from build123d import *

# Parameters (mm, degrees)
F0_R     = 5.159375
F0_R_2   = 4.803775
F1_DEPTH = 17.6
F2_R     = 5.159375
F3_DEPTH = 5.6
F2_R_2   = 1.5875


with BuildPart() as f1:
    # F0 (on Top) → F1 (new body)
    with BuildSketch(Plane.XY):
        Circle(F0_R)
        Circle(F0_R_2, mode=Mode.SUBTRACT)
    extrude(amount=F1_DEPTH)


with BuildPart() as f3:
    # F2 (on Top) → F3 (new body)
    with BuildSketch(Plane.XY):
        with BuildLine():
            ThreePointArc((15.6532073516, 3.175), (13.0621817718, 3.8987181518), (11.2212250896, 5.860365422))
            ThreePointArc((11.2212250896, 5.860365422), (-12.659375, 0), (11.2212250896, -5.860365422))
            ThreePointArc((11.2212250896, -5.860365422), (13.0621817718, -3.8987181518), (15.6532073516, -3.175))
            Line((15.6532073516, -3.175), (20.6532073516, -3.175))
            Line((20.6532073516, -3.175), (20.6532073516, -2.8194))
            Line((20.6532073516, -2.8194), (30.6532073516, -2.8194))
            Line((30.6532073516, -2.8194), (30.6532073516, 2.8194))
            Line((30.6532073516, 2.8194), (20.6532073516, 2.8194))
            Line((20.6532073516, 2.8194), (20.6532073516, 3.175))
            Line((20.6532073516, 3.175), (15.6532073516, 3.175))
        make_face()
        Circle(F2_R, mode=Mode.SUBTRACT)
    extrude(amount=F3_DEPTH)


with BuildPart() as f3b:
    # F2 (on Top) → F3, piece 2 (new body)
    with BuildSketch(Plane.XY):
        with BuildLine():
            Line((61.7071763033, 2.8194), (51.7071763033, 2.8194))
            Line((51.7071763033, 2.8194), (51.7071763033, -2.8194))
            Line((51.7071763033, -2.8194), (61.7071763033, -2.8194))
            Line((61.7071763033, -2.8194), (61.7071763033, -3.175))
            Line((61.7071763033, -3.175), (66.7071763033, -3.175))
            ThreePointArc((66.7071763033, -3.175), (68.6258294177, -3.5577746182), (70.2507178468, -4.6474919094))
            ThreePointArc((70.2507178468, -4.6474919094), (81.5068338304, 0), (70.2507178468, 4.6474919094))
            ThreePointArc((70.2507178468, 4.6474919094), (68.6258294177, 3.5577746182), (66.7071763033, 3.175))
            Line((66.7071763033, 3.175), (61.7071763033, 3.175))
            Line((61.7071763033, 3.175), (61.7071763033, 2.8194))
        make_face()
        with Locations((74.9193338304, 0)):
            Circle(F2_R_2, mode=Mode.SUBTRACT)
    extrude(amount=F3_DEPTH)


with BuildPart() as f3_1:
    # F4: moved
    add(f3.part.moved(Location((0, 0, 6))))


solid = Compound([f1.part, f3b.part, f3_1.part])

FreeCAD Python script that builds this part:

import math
import FreeCAD as App
import Part
import Sketcher

V = App.Vector
Q = App.Units.Quantity

doc = App.newDocument("Part")
body = doc.addObject("PartDesign::Body", "Body")

# Sketch on XY plane
sketch1 = doc.addObject("Sketcher::SketchObject", "Sketch")
body.addObject(sketch1)
sketch1.AttachmentSupport = (doc.XY_Plane, [""])
sketch1.MapMode = "FlatFace"
sketch1.addGeometry([
    Part.Circle(V(0, 0, 0), V(0, 0, 1), 5.2),
    Part.Circle(V(0, 0, 0), V(0, 0, 1), 4.8),
], False)
sketch1.addConstraint([
    Sketcher.Constraint("Coincident", 0, 3, -1, 1),
    Sketcher.Constraint("Coincident", 1, 3, -1, 1),
    Sketcher.Constraint("Diameter", 0, Q("10.31875 mm")),
    Sketcher.Constraint("Diameter", 1, Q("9.60755 mm")),
])
pad1 = doc.addObject("PartDesign::Pad", "Pad")
body.addObject(pad1)
pad1.Profile = sketch1
pad1.Length = 17.6
body2 = doc.addObject("PartDesign::Body", "Body001")

# Sketch on XY plane
sketch2 = doc.addObject("Sketcher::SketchObject", "Sketch001")
body2.addObject(sketch2)
sketch2.AttachmentSupport = (doc.getObject("XY_Plane001"), [""])
sketch2.MapMode = "FlatFace"
sketch2.addGeometry([
    Part.ArcOfCircle(Part.Circle(V(15.65, 8.18, 0), V(0, 0, 1), 5), math.radians(-152), math.radians(-90)),  # 0
    Part.ArcOfCircle(Part.Circle(V(0, 0, 0), V(0, 0, 1), 12.66), math.radians(28), math.radians(332)),  # 1
    Part.ArcOfCircle(Part.Circle(V(15.65, -8.18, 0), V(0, 0, 1), 5), math.radians(90), math.radians(152)),  # 2
    Part.LineSegment(V(15.65, -3.17, 0), V(20.65, -3.17, 0)),  # 3
    Part.LineSegment(V(20.65, -3.17, 0), V(20.65, -2.82, 0)),  # 4
    Part.LineSegment(V(20.65, -2.82, 0), V(30.65, -2.82, 0)),  # 5
    Part.LineSegment(V(30.65, -2.82, 0), V(30.65, 2.82, 0)),  # 6
    Part.LineSegment(V(30.65, 2.82, 0), V(20.65, 2.82, 0)),  # 7
    Part.LineSegment(V(20.65, 2.82, 0), V(20.65, 3.17, 0)),  # 8
    Part.LineSegment(V(20.65, 3.17, 0), V(15.65, 3.17, 0)),  # 9
    Part.Circle(V(0, 0, 0), V(0, 0, 1), 5.16),  # 10
], False)
sketch2.addConstraint([
    Sketcher.Constraint("Tangent", 0, 1, 1, 1),
    Sketcher.Constraint("Tangent", 1, 2, 2, 2),
    Sketcher.Constraint("Tangent", 2, 1, 3, 1),
    Sketcher.Constraint("Coincident", 3, 2, 4, 1),
    Sketcher.Constraint("Coincident", 4, 2, 5, 1),
    Sketcher.Constraint("Coincident", 5, 2, 6, 1),
    Sketcher.Constraint("Coincident", 6, 2, 7, 1),
    Sketcher.Constraint("Coincident", 7, 2, 8, 1),
    Sketcher.Constraint("Coincident", 8, 2, 9, 1),
    Sketcher.Constraint("Tangent", 9, 2, 0, 2),
    Sketcher.Constraint("Horizontal", 3),
    Sketcher.Constraint("Vertical", 4),
    Sketcher.Constraint("Horizontal", 5),
    Sketcher.Constraint("Vertical", 6),
    Sketcher.Constraint("Horizontal", 7),
    Sketcher.Constraint("Vertical", 8),
    Sketcher.Constraint("Horizontal", 9),
    Sketcher.Constraint("Coincident", 1, 3, -1, 1),
    Sketcher.Constraint("Coincident", 10, 3, -1, 1),
    Sketcher.Constraint("Equal", 0, 2),
    Sketcher.Constraint("Symmetric", 4, 2, 7, 2, -1),
    Sketcher.Constraint("Vertical", 0, 3, 2, 3),
    Sketcher.Constraint("Radius", 0, Q("5 mm")),
    Sketcher.Constraint("DistanceX", 3, 1, 3, 2, Q("5 mm")),
    Sketcher.Constraint("DistanceX", 5, 1, 5, 2, Q("10 mm")),
    Sketcher.Constraint("Diameter", 10, Q("10.31875 mm")),
    Sketcher.Constraint("DistanceY", 2, 3, 0, 3, Q("16.35 mm")),
    Sketcher.Constraint("DistanceY", 4, 1, 4, 2, Q("0.3556 mm")),
    Sketcher.Constraint("Radius", 1, Q("12.659375 mm")),
])
pad2 = doc.addObject("PartDesign::Pad", "Pad001")
body2.addObject(pad2)
pad2.Profile = sketch2
pad2.Length = 5.6
body3 = doc.addObject("PartDesign::Body", "Body002")

# Sketch on XY plane
sketch3 = doc.addObject("Sketcher::SketchObject", "Sketch002")
body3.addObject(sketch3)
sketch3.AttachmentSupport = (doc.getObject("XY_Plane002"), [""])
sketch3.MapMode = "FlatFace"
sketch3.addGeometry([
    Part.LineSegment(V(61.71, 2.82, 0), V(51.71, 2.82, 0)),  # 0
    Part.LineSegment(V(51.71, 2.82, 0), V(51.71, -2.82, 0)),  # 1
    Part.LineSegment(V(51.71, -2.82, 0), V(61.71, -2.82, 0)),  # 2
    Part.LineSegment(V(61.71, -2.82, 0), V(61.71, -3.17, 0)),  # 3
    Part.LineSegment(V(61.71, -3.17, 0), V(66.71, -3.17, 0)),  # 4
    Part.ArcOfCircle(Part.Circle(V(66.71, -8.18, 0), V(0, 0, 1), 5), math.radians(45), math.radians(90)),  # 5
    Part.ArcOfCircle(Part.Circle(V(74.92, 0, 0), V(0, 0, 1), 6.59), math.radians(-135), math.radians(135)),  # 6
    Part.ArcOfCircle(Part.Circle(V(66.71, 8.18, 0), V(0, 0, 1), 5), math.radians(-90), math.radians(-45)),  # 7
    Part.LineSegment(V(66.71, 3.17, 0), V(61.71, 3.17, 0)),  # 8
    Part.LineSegment(V(61.71, 3.17, 0), V(61.71, 2.82, 0)),  # 9
    Part.Circle(V(74.92, 0, 0), V(0, 0, 1), 1.59),  # 10
], False)
sketch3.addConstraint([
    Sketcher.Constraint("Coincident", 0, 2, 1, 1),
    Sketcher.Constraint("Coincident", 1, 2, 2, 1),
    Sketcher.Constraint("Coincident", 2, 2, 3, 1),
    Sketcher.Constraint("Coincident", 3, 2, 4, 1),
    Sketcher.Constraint("Tangent", 4, 2, 5, 2),
    Sketcher.Constraint("Tangent", 5, 1, 6, 1),
    Sketcher.Constraint("Tangent", 6, 2, 7, 2),
    Sketcher.Constraint("Tangent", 7, 1, 8, 1),
    Sketcher.Constraint("Coincident", 8, 2, 9, 1),
    Sketcher.Constraint("Coincident", 9, 2, 0, 1),
    Sketcher.Constraint("Horizontal", 0),
    Sketcher.Constraint("Vertical", 1),
    Sketcher.Constraint("Horizontal", 2),
    Sketcher.Constraint("Vertical", 3),
    Sketcher.Constraint("Horizontal", 4),
    Sketcher.Constraint("Horizontal", 8),
    Sketcher.Constraint("Vertical", 9),
    Sketcher.Constraint("Coincident", 10, 3, 6, 3),
    Sketcher.Constraint("Equal", 5, 7),
    Sketcher.Constraint("Symmetric", 5, 3, 7, 3, -1),
    Sketcher.Constraint("Symmetric", 2, 2, 9, 2, -1),
    Sketcher.Constraint("Radius", 5, Q("5 mm")),
    Sketcher.Constraint("DistanceX", 0, 2, 0, 1, Q("10 mm")),
    Sketcher.Constraint("DistanceX", 4, 1, 4, 2, Q("5 mm")),
    Sketcher.Constraint("Diameter", 10, Q("3.175 mm")),
    Sketcher.Constraint("Radius", 6, Q("6.5875 mm")),
    Sketcher.Constraint("DistanceY", 5, 3, 7, 3, Q("16.35 mm")),
    Sketcher.Constraint("DistanceY", 1, 2, 1, 1, Q("5.6388 mm")),
    Sketcher.Constraint("DistanceX", -1, 1, 5, 3, Q("66.707176 mm")),
])
pad3 = doc.addObject("PartDesign::Pad", "Pad002")
body3.addObject(pad3)
pad3.Profile = sketch3
pad3.Length = 5.6
body4 = doc.addObject("PartDesign::Body", "Body003")
doc.recompute()

body2.Placement = App.Placement(V(0, 0, 6), App.Rotation(V(0, 0, 1), 0))
boolean = doc.addObject("PartDesign::Boolean", "Boolean")
body4.addObject(boolean)
boolean.Type = "Fuse"
boolean.addObjects([body2])

doc.recompute()
